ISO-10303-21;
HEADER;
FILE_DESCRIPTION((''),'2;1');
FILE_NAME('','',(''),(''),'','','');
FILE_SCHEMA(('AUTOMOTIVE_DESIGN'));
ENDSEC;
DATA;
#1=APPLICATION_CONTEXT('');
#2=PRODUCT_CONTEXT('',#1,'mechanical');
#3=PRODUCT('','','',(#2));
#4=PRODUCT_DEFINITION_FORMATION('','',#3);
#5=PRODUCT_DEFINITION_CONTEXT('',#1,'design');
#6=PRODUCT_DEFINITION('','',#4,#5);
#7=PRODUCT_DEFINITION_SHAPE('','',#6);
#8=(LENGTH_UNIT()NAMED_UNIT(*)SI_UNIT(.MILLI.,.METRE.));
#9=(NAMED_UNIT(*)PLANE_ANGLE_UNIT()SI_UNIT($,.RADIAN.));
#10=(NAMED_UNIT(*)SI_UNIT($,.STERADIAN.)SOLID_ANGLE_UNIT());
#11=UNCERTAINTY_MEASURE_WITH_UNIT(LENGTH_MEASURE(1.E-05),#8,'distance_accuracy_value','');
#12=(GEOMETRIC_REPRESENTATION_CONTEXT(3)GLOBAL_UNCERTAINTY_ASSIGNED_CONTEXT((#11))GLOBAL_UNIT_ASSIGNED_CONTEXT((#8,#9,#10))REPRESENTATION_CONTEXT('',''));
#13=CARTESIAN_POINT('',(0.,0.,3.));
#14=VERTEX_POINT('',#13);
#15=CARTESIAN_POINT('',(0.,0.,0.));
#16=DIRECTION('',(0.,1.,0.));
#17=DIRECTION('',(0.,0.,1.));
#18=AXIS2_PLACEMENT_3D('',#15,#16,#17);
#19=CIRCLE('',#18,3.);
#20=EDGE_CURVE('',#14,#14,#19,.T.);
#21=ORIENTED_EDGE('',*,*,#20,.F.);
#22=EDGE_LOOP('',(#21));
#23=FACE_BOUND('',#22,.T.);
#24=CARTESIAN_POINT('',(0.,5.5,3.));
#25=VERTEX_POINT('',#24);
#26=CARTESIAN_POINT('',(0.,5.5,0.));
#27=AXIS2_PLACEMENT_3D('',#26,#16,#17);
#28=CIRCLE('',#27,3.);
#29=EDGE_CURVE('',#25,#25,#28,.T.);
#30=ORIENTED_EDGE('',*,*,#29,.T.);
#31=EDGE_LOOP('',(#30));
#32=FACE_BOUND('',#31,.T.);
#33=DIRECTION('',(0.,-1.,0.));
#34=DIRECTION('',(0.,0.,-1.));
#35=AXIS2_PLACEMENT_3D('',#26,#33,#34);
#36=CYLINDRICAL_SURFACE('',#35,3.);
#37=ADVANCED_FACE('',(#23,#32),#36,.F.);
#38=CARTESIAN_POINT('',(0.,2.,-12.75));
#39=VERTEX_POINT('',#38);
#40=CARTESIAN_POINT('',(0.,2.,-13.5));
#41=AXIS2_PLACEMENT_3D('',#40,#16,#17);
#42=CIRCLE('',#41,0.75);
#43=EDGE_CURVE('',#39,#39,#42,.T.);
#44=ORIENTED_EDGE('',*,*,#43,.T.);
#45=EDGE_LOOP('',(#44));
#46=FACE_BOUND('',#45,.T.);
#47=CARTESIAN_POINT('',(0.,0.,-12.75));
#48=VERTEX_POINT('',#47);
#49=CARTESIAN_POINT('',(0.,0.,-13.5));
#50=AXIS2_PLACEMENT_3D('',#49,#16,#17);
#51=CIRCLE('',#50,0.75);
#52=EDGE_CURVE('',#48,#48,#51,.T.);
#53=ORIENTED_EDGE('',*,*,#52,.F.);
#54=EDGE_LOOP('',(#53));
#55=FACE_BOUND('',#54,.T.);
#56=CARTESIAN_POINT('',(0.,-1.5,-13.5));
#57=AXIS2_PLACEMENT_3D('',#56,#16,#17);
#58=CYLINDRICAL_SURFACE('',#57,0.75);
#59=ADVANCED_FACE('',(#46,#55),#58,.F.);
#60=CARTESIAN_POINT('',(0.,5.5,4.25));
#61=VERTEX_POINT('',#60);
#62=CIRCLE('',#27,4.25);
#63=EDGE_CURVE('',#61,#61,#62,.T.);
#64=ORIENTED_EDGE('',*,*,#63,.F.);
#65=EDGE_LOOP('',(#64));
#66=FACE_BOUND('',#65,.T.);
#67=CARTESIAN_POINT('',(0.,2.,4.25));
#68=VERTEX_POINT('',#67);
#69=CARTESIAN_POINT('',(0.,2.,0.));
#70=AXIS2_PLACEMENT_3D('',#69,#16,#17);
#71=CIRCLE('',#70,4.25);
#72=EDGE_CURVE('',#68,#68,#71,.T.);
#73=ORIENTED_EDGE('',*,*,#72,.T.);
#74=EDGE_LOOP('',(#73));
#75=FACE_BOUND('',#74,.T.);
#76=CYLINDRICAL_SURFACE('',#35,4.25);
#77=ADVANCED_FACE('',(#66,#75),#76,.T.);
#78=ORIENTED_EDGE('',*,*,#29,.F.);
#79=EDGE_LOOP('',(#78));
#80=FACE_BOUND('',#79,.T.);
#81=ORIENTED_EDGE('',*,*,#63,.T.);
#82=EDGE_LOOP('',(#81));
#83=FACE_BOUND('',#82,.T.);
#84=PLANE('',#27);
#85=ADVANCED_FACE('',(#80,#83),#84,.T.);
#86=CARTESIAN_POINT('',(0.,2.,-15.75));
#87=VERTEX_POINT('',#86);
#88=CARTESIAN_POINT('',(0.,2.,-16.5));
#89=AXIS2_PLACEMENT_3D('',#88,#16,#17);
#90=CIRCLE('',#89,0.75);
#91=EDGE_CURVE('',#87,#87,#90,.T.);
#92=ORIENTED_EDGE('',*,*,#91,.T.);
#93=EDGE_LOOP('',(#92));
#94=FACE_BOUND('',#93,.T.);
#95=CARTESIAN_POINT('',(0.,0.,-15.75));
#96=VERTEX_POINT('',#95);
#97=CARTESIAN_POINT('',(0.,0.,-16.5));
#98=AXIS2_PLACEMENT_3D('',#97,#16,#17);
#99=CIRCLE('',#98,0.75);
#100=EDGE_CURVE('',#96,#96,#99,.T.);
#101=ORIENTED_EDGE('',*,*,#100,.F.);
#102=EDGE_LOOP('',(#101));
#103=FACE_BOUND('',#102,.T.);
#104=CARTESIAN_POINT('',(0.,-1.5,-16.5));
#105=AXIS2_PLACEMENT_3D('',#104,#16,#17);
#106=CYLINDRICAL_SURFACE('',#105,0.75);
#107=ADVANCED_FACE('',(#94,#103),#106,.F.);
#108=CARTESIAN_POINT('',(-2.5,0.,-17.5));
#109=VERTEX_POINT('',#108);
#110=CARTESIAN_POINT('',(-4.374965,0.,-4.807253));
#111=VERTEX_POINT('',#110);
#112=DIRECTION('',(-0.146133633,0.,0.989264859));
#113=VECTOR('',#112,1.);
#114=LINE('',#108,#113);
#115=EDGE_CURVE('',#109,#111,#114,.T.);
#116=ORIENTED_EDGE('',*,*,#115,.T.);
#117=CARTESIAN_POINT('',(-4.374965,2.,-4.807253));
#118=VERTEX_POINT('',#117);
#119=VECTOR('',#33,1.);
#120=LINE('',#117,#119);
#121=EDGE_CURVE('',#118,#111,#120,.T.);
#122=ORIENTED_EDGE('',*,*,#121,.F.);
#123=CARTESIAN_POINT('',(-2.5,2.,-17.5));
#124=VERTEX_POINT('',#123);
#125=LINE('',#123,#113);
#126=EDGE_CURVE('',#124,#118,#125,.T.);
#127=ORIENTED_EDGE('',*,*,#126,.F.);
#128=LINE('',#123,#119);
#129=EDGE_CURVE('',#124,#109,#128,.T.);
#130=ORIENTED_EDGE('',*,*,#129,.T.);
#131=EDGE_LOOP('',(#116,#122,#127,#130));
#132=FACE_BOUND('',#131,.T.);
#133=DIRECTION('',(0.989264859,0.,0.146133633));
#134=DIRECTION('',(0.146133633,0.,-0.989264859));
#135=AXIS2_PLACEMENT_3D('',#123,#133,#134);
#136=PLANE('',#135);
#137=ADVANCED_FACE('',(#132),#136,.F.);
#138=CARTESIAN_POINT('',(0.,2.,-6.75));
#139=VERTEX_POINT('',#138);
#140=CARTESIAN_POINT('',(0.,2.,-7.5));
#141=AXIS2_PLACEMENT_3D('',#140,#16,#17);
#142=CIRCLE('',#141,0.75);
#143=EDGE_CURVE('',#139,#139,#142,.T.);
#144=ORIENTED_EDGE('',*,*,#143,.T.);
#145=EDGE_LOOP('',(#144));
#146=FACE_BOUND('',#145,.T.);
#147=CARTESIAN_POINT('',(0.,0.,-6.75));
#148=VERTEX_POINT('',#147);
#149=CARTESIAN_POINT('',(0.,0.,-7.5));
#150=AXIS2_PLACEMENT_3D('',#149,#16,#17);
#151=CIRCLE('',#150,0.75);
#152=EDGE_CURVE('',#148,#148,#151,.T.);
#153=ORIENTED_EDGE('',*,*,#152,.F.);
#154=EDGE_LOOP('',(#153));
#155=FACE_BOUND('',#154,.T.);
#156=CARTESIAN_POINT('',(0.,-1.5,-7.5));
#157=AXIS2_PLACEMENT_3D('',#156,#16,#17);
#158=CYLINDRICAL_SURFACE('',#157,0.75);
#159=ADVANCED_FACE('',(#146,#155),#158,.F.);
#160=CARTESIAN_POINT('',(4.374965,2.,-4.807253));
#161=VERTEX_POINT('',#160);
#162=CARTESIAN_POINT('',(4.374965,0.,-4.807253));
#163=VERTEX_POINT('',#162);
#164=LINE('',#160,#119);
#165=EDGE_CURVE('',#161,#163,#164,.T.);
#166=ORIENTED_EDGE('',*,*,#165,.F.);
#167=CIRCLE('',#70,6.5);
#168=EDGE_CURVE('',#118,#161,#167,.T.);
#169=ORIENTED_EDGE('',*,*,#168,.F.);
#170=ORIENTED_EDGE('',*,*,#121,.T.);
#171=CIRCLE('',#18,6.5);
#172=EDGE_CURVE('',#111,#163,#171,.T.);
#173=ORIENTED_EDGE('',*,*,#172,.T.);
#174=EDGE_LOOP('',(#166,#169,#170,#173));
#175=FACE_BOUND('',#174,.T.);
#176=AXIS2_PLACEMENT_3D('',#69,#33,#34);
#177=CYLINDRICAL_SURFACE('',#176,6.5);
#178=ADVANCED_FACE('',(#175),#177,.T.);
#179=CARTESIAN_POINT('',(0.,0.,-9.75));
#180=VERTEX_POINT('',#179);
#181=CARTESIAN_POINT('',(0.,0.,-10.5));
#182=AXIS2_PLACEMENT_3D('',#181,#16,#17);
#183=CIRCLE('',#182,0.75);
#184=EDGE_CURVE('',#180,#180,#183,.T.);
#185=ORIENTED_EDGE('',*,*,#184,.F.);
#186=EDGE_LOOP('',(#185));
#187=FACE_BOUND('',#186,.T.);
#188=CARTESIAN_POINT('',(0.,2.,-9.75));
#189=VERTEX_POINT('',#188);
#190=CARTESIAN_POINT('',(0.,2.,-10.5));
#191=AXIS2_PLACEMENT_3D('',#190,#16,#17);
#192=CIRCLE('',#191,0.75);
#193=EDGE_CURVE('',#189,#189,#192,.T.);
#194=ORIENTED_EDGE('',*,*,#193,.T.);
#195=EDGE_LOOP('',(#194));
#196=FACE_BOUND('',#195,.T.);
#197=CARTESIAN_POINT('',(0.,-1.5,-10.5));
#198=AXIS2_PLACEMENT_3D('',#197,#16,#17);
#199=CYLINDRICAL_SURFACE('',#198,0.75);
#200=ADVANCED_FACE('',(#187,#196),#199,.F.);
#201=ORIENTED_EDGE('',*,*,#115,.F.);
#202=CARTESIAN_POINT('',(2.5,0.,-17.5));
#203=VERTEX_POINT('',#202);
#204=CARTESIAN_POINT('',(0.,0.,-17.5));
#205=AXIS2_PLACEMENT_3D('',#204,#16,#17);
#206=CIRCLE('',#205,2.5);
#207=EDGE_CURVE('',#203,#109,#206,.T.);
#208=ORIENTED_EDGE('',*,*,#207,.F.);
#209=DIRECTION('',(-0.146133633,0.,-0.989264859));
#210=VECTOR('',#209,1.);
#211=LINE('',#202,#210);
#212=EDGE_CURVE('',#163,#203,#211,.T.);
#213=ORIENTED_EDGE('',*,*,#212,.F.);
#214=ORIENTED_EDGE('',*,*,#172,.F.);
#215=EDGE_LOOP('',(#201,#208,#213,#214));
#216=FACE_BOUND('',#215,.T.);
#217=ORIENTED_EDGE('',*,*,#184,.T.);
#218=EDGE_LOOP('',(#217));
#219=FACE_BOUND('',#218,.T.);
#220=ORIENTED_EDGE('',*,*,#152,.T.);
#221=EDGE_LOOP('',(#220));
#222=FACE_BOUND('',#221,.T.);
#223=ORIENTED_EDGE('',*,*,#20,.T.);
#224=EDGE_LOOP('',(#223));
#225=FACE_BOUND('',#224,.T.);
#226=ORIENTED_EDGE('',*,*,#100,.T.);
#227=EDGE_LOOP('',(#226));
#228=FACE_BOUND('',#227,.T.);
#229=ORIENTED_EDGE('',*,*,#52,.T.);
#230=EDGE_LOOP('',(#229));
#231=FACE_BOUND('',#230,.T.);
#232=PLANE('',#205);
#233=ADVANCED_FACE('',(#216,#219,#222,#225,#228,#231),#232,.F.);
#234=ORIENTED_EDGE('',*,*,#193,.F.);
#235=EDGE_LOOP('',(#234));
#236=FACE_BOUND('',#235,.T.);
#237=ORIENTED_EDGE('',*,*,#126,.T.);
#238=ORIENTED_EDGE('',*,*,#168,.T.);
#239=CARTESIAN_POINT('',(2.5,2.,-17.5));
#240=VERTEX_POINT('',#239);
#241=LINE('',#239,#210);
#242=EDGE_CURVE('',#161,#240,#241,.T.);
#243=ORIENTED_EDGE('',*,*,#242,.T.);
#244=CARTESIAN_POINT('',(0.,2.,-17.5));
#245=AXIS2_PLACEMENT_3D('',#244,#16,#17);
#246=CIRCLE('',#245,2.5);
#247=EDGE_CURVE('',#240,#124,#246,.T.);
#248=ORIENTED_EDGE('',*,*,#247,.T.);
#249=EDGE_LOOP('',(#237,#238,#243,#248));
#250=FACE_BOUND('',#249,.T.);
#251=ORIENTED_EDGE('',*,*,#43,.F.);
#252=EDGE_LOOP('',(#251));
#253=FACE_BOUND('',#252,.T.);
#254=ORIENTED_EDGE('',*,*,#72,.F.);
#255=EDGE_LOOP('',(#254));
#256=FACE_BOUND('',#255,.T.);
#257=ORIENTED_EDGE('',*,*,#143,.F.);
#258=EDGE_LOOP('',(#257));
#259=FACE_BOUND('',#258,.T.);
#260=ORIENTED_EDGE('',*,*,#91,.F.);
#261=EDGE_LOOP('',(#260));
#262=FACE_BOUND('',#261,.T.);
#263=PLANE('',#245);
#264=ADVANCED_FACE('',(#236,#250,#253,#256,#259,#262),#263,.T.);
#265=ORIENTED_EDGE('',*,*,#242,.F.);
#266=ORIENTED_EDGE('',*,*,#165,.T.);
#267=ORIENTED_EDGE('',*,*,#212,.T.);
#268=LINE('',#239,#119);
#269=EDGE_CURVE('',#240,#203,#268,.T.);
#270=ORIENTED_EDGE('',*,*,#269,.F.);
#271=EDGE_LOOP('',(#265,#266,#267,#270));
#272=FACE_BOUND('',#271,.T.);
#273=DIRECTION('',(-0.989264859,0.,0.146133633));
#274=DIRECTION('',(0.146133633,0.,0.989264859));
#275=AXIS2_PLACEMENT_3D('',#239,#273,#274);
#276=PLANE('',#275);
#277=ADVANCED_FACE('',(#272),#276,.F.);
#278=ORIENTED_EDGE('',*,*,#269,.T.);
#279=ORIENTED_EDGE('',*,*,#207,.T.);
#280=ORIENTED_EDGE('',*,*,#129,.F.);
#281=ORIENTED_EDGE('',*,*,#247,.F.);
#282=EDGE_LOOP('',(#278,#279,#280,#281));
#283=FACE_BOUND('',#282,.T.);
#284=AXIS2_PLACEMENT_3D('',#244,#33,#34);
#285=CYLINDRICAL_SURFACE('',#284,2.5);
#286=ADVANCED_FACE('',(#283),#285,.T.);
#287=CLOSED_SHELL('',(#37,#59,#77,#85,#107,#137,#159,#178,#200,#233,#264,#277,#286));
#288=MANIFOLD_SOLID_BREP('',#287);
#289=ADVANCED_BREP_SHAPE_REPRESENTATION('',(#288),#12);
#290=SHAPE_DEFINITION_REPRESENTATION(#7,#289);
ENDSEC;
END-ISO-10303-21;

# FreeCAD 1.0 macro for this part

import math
import FreeCAD as App
import Part
import Sketcher
from FreeCAD import Vector

doc = App.newDocument("Part")
body = doc.addObject("PartDesign::Body", "Body")

# Sketch on XZ plane
sketch1 = body.newObject("Sketcher::SketchObject", "Sketch")
sketch1.AttachmentSupport = (doc.getObject("XZ_Plane"), [""])
sketch1.MapMode = "FlatFace"
sketch1.addGeometry([
    Part.LineSegment(Vector(-2.5, -17.5, 0), Vector(-4.4, -4.8, 0)),
    Part.ArcOfCircle(Part.Circle(Vector(0, 0, 0), Vector(0, 0, 1), 6.5), math.radians(-48), math.radians(228)),
    Part.LineSegment(Vector(4.4, -4.8, 0), Vector(2.5, -17.5, 0)),
    Part.ArcOfCircle(Part.Circle(Vector(0, -17.5, 0), Vector(0, 0, 1), 2.5), math.radians(180), math.radians(360)),
], False)
sketch1.addConstraint([
    Sketcher.Constraint("Coincident", 0, 2, 1, 2),
    Sketcher.Constraint("Coincident", 1, 1, 2, 1),
    Sketcher.Constraint("Coincident", 2, 2, 3, 2),
    Sketcher.Constraint("Coincident", 3, 1, 0, 1),
    Sketcher.Constraint("Coincident", 1, 3, -1, 1),
    Sketcher.Constraint("Symmetric", 2, 2, 3, 1, -2),
    Sketcher.Constraint("Horizontal", 0, 2, 1, 1),
    Sketcher.Constraint("Horizontal", 3, 3, 2, 2),
    Sketcher.Constraint("Radius", 1, 6.5),
    Sketcher.Constraint("Radius", 3, 2.5),
    Sketcher.Constraint("DistanceY", 3, 3, -1, 1, 17.5),
    Sketcher.Constraint("DistanceX", 0, 2, 1, 1, 8.749931),
])
pad1 = body.newObject("PartDesign::Pad", "Pad")
pad1.Profile = sketch1
pad1.Length = 2
pad1.Reversed = True

# Sketch on XZ plane
sketch2 = body.newObject("Sketcher::SketchObject", "Sketch001")
sketch2.AttachmentSupport = (doc.getObject("XZ_Plane"), [""])
sketch2.MapMode = "FlatFace"
sketch2.AttachmentOffset = App.Placement(Vector(0, 0, -2), App.Rotation())
sketch2.addGeometry([
    Part.Circle(Vector(0, 0, 0), Vector(0, 0, 1), 4.2),
    Part.Circle(Vector(0, 0, 0), Vector(0, 0, 1), 3),
], False)
sketch2.addConstraint([
    Sketcher.Constraint("Coincident", 0, 3, -1, 1),
    Sketcher.Constraint("Coincident", 1, 3, -1, 1),
    Sketcher.Constraint("Diameter", 1, 6.0),
    Sketcher.Constraint("Diameter", 0, 8.5),
])
pad2 = body.newObject("PartDesign::Pad", "Pad001")
pad2.Profile = sketch2
pad2.Length = 3.5
pad2.Reversed = True

# Sketch on XZ plane
sketch3 = body.newObject("Sketcher::SketchObject", "Sketch002")
sketch3.AttachmentSupport = (doc.getObject("XZ_Plane"), [""])
sketch3.MapMode = "FlatFace"
sketch3.AttachmentOffset = App.Placement(Vector(0, 0, 1.5), App.Rotation())
sketch3.addGeometry(Part.Circle(Vector(0, 0, 0), Vector(0, 0, 1), 3), False)
sketch3.addConstraint([
    Sketcher.Constraint("Coincident", 0, 3, -1, 1),
    Sketcher.Constraint("Diameter", 0, 6.0),
])
pocket1 = body.newObject("PartDesign::Pocket", "Pocket")
pocket1.Profile = sketch3
pocket1.Length = 3.5

# Sketch on XZ plane
sketch4 = body.newObject("Sketcher::SketchObject", "Sketch003")
sketch4.AttachmentSupport = (doc.getObject("XZ_Plane"), [""])
sketch4.MapMode = "FlatFace"
sketch4.AttachmentOffset = App.Placement(Vector(0, 0, -2), App.Rotation())
sketch4.addGeometry([
    Part.Circle(Vector(0, -7.5, 0), Vector(0, 0, 1), 0.8),
    Part.Circle(Vector(0, -10.5, 0), Vector(0, 0, 1), 0.8),
    Part.Circle(Vector(0, -13.5, 0), Vector(0, 0, 1), 0.8),
    Part.Circle(Vector(0, -16.5, 0), Vector(0, 0, 1), 0.8),
], False)
sketch4.addConstraint([
    Sketcher.Constraint("Equal", 0, 1),
    Sketcher.Constraint("Equal", 1, 2),
    Sketcher.Constraint("Equal", 2, 3),
    Sketcher.Constraint("PointOnObject", 0, 3, -2),
    Sketcher.Constraint("PointOnObject", 1, 3, -2),
    Sketcher.Constraint("PointOnObject", 2, 3, -2),
    Sketcher.Constraint("PointOnObject", 3, 3, -2),
    Sketcher.Constraint("Diameter", 0, 1.5),
    Sketcher.Constraint("DistanceY", 1, 3, 0, 3, 3.0),
    Sketcher.Constraint("DistanceY", 2, 3, 1, 3, 3.0),
    Sketcher.Constraint("DistanceY", 3, 3, 2, 3, 3.0),
    Sketcher.Constraint("DistanceY", 0, 3, -1, 1, 7.5),
])
pocket2 = body.newObject("PartDesign::Pocket", "Pocket001")
pocket2.Profile = sketch4
pocket2.Length = 3.5
pocket2.Reversed = True

doc.recompute()
